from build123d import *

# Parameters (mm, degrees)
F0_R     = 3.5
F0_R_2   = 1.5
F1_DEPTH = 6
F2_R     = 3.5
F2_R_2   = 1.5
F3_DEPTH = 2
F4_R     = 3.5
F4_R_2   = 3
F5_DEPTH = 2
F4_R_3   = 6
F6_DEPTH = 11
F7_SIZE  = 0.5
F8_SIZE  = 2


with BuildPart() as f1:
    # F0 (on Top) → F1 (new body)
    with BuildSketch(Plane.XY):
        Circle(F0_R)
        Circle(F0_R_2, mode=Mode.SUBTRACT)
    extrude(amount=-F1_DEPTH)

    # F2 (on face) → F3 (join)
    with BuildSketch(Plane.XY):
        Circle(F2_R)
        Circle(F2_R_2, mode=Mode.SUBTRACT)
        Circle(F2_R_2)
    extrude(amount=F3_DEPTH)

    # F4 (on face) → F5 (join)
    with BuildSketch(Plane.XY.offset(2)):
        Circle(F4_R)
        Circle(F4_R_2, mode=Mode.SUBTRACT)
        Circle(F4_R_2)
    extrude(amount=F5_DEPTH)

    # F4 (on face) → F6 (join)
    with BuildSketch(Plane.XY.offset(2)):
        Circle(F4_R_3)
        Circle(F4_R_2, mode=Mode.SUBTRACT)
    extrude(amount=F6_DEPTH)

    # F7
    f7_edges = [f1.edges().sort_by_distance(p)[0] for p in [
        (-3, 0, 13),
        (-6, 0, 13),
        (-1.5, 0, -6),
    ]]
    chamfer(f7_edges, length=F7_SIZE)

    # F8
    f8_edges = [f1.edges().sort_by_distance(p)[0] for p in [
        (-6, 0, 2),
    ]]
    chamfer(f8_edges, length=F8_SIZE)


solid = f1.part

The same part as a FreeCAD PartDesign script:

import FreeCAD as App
import Part
import Sketcher
from FreeCAD import Vector
Q = App.Units.Quantity


def edges_at(feature, points):
    """Names of the edges that pass closest to the given points."""
    edges = feature.Shape.Edges
    near = lambda p: min(range(len(edges)), key=lambda i: edges[i].distToShape(Part.Vertex(*p))[0])
    return sorted({f"Edge{near(p) + 1}" for p in points})

doc = App.newDocument("Part")
params = doc.addObject("Spreadsheet::Sheet", "Params")
for row, (alias, value) in enumerate([
    ("sketch1_diameter", "7 mm"),
    ("sketch1_diameter2", "3 mm"),
    ("pad1_length", "6 mm"),
    ("sketch2_diameter", "7 mm"),
    ("pad2_length", "2 mm"),
    ("sketch3_diameter", "7 mm"),
    ("pad3_length", "2 mm"),
    ("sketch4_diameter", "12 mm"),
    ("sketch4_diameter2", "6 mm"),
    ("pad4_length", "11 mm"),
    ("chamfer_size", "0.5 mm"),
    ("chamfer2_size", "2 mm"),
], start=1):
    params.set(f"A{row}", alias)
    params.set(f"B{row}", "=" + value)
    params.setAlias(f"B{row}", alias)

body = doc.addObject("PartDesign::Body", "Body")

# Sketch on XY plane
sketch1 = body.newObject("Sketcher::SketchObject", "Sketch")
sketch1.AttachmentSupport = (doc.getObject("XY_Plane"), [""])
sketch1.MapMode = "FlatFace"
sketch1.addGeometry([
    Part.Circle(Vector(0, 0, 0), Vector(0, 0, 1), 3.5),
    Part.Circle(Vector(0, 0, 0), Vector(0, 0, 1), 1.5),
], False)
sketch1.addConstraint([
    Sketcher.Constraint("Coincident", 0, 3, -1, 1),
    Sketcher.Constraint("Coincident", 1, 3, -1, 1),
    Sketcher.Constraint("Diameter", 0, Q("7 mm")),
    Sketcher.Constraint("Diameter", 1, Q("3 mm")),
])
sketch1.setExpression("Constraints[2]", "Params.sketch1_diameter")
sketch1.setExpression("Constraints[3]", "Params.sketch1_diameter2")
pad1 = body.newObject("PartDesign::Pad", "Pad")
pad1.Profile = sketch1
pad1.setExpression("Length", "Params.pad1_length")
pad1.Reversed = True

# Sketch on XY plane
sketch2 = body.newObject("Sketcher::SketchObject", "Sketch001")
sketch2.AttachmentSupport = (doc.getObject("XY_Plane"), [""])
sketch2.MapMode = "FlatFace"
sketch2.addGeometry(Part.Circle(Vector(0, 0, 0), Vector(0, 0, 1), 3.5), False)
sketch2.addConstraint([
    Sketcher.Constraint("Coincident", 0, 3, -1, 1),
    Sketcher.Constraint("Diameter", 0, Q("7 mm")),
])
sketch2.setExpression("Constraints[1]", "Params.sketch2_diameter")
pad2 = body.newObject("PartDesign::Pad", "Pad001")
pad2.Profile = sketch2
pad2.setExpression("Length", "Params.pad2_length")

# Sketch on XY plane
sketch3 = body.newObject("Sketcher::SketchObject", "Sketch002")
sketch3.AttachmentSupport = (doc.getObject("XY_Plane"), [""])
sketch3.MapMode = "FlatFace"
sketch3.AttachmentOffset = App.Placement(Vector(0, 0, 2), App.Rotation())
sketch3.addGeometry(Part.Circle(Vector(0, 0, 0), Vector(0, 0, 1), 3.5), False)
sketch3.addConstraint([
    Sketcher.Constraint("Coincident", 0, 3, -1, 1),
    Sketcher.Constraint("Diameter", 0, Q("7 mm")),
])
sketch3.setExpression("Constraints[1]", "Params.sketch3_diameter")
pad3 = body.newObject("PartDesign::Pad", "Pad002")
pad3.Profile = sketch3
pad3.setExpression("Length", "Params.pad3_length")

# Sketch on XY plane
sketch4 = body.newObject("Sketcher::SketchObject", "Sketch003")
sketch4.AttachmentSupport = (doc.getObject("XY_Plane"), [""])
sketch4.MapMode = "FlatFace"
sketch4.AttachmentOffset = App.Placement(Vector(0, 0, 2), App.Rotation())
sketch4.addGeometry([
    Part.Circle(Vector(0, 0, 0), Vector(0, 0, 1), 6),
    Part.Circle(Vector(0, 0, 0), Vector(0, 0, 1), 3),
], False)
sketch4.addConstraint([
    Sketcher.Constraint("Coincident", 0, 3, -1, 1),
    Sketcher.Constraint("Coincident", 1, 3, -1, 1),
    Sketcher.Constraint("Diameter", 0, Q("12 mm")),
    Sketcher.Constraint("Diameter", 1, Q("6 mm")),
])
sketch4.setExpression("Constraints[2]", "Params.sketch4_diameter")
sketch4.setExpression("Constraints[3]", "Params.sketch4_diameter2")
pad4 = body.newObject("PartDesign::Pad", "Pad003")
pad4.Profile = sketch4
pad4.setExpression("Length", "Params.pad4_length")
doc.recompute()

chamfer = body.newObject("PartDesign::Chamfer", "Chamfer")
chamfer.Base = (pad4, edges_at(pad4, [(-3, 0, 13), (-6, 0, 13), (-1.5, 0, -6)]))
chamfer.setExpression("Size", "Params.chamfer_size")
doc.recompute()

chamfer2 = body.newObject("PartDesign::Chamfer", "Chamfer001")
chamfer2.Base = (chamfer, edges_at(chamfer, [(-6, 0, 2)]))
chamfer2.setExpression("Size", "Params.chamfer2_size")

doc.recompute()
